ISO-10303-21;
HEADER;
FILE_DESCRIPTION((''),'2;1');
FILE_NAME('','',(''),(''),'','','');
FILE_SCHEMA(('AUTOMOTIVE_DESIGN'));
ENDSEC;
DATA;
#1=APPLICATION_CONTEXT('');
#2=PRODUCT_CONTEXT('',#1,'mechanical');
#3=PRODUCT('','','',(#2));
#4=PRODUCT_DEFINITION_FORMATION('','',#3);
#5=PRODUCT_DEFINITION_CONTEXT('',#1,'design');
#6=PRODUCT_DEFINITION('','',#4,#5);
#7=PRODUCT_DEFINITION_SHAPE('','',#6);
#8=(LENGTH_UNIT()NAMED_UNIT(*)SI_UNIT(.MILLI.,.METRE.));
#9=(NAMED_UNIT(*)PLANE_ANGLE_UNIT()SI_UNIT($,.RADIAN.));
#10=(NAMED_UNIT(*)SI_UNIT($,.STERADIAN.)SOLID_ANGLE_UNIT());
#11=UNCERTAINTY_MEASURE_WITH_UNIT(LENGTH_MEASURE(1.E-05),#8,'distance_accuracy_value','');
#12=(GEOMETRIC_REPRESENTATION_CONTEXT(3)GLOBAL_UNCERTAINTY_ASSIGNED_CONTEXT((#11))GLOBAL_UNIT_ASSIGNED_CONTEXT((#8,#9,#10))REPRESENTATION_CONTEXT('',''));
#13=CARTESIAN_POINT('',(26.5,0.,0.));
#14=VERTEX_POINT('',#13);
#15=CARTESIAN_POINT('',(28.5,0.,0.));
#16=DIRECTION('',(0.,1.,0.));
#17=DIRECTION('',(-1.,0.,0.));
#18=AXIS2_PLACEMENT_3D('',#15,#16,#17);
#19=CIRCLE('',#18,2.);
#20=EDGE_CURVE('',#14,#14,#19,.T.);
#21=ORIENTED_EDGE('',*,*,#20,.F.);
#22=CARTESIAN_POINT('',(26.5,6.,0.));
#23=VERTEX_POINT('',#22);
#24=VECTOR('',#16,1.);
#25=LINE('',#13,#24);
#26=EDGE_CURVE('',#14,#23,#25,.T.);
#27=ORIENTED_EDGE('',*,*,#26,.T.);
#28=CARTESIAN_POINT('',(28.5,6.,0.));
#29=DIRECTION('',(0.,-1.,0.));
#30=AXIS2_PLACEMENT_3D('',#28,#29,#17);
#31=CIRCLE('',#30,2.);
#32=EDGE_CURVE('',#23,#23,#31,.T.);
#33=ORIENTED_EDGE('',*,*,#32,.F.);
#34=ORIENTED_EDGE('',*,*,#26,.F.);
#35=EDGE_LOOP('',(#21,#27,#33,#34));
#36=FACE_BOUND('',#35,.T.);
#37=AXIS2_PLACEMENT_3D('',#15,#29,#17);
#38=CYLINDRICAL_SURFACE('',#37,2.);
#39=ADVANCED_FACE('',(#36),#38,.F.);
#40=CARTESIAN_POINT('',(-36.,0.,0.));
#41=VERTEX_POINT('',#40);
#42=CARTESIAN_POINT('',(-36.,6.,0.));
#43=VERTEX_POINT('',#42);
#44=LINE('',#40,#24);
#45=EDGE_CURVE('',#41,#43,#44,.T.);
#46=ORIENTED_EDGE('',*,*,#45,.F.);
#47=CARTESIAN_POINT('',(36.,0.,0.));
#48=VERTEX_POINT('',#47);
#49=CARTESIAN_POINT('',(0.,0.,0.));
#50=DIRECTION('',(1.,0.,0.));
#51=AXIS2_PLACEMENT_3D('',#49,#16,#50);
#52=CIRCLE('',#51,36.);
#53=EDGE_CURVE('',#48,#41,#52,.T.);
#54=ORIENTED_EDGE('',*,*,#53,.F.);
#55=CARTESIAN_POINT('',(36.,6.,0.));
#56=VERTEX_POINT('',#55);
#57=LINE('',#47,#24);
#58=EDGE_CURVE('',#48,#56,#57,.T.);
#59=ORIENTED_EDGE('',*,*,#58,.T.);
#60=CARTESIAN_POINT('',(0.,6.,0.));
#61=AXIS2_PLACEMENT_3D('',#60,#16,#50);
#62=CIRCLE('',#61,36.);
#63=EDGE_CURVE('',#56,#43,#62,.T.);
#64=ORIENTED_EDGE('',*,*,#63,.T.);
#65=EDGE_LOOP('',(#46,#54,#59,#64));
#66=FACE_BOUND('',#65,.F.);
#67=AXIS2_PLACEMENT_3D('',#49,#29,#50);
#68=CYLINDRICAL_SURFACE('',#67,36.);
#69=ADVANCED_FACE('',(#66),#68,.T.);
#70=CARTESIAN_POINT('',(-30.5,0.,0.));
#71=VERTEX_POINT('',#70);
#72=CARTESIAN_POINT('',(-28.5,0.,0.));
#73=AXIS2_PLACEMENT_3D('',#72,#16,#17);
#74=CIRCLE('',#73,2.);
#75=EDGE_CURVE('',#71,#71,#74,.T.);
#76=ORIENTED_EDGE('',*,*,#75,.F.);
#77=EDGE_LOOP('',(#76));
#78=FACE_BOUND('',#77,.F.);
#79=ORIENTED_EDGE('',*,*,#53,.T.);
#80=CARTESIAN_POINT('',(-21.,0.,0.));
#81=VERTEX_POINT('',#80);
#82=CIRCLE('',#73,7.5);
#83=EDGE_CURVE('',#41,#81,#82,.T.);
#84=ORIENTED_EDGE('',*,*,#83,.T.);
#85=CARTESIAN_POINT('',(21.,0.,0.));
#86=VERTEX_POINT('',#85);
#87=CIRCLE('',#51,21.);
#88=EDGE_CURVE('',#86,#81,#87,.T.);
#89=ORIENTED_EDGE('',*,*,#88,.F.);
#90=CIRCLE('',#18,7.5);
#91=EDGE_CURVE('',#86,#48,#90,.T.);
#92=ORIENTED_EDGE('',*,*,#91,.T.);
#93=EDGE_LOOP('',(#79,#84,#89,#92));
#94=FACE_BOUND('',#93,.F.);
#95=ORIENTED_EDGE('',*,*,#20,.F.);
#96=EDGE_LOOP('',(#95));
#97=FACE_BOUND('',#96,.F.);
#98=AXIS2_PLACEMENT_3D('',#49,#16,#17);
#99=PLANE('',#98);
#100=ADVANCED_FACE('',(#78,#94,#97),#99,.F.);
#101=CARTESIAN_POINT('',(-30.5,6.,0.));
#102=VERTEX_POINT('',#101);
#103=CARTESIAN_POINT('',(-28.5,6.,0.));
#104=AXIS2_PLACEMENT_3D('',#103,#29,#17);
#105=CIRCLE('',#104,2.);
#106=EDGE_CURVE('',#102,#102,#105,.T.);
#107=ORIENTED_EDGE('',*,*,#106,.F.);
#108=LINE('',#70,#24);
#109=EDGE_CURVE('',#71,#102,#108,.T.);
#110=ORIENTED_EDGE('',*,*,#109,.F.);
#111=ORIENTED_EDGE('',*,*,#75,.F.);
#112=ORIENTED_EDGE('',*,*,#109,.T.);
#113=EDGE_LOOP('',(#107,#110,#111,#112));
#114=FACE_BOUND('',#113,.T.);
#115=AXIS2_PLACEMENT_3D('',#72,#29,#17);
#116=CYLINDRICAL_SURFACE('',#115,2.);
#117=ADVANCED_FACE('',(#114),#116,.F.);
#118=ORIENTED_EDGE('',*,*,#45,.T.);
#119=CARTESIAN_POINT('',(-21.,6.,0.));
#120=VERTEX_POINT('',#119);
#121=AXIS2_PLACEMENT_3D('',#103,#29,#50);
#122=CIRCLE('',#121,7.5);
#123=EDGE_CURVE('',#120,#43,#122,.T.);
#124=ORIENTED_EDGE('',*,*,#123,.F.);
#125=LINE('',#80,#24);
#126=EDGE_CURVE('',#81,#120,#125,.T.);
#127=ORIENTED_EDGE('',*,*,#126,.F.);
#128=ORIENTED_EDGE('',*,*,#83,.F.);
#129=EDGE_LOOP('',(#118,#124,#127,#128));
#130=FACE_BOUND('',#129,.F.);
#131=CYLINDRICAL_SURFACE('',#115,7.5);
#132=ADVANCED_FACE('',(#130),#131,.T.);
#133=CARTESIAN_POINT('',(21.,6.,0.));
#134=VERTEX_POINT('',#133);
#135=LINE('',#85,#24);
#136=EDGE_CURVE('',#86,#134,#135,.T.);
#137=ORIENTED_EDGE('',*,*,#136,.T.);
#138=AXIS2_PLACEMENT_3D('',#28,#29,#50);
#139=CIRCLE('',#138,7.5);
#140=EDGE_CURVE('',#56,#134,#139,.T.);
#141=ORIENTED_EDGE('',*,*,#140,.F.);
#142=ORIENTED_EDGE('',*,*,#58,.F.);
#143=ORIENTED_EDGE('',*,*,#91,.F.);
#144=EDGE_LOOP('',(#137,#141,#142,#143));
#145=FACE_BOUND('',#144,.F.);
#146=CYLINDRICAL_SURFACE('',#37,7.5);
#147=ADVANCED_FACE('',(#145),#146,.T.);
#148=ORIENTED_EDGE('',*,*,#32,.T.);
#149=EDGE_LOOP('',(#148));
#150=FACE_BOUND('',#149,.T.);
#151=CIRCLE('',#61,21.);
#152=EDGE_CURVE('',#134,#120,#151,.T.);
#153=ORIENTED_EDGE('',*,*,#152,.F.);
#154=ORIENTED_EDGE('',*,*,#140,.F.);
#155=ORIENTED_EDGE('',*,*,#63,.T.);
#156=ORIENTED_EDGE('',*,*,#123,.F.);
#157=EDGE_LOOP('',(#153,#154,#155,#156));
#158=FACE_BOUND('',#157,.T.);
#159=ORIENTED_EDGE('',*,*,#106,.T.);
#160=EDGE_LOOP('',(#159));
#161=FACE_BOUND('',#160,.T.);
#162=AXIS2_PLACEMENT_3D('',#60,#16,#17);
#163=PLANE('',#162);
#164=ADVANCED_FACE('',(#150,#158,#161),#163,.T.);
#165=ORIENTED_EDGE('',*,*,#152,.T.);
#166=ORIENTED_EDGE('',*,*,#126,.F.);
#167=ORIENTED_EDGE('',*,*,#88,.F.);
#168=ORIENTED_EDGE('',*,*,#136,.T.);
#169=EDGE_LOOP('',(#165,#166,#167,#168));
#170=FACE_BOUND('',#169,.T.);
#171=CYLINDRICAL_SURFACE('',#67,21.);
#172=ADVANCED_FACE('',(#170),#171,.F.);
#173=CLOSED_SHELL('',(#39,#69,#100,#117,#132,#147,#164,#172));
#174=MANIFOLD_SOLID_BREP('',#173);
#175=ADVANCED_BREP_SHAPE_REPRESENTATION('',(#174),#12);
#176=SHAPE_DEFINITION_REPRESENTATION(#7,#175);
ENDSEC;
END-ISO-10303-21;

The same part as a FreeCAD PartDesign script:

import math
import FreeCAD as App
import Part
import Sketcher

doc = App.newDocument("Part")
body = doc.addObject("PartDesign::Body", "Body")

# Sketch on XZ plane
sketch1 = body.newObject("Sketcher::SketchObject", "Sketch")
sketch1.AttachmentSupport = (doc.getObject("XZ_Plane"), [""])
sketch1.MapMode = "FlatFace"
sketch1.addGeometry([
    Part.ArcOfCircle(Part.Circle(App.Vector(0, 0, 0), App.Vector(0, 0, 1), 21), math.radians(180), math.radians(360)),  # 0
    Part.ArcOfCircle(Part.Circle(App.Vector(28.5, 0, 0), App.Vector(0, 0, 1), 7.5), math.radians(0), math.radians(180)),  # 1
    Part.ArcOfCircle(Part.Circle(App.Vector(0, 0, 0), App.Vector(0, 0, 1), 36), math.radians(180), math.radians(360)),  # 2
    Part.ArcOfCircle(Part.Circle(App.Vector(-28.5, 0, 0), App.Vector(0, 0, 1), 7.5), math.radians(0), math.radians(180)),  # 3
    Part.Circle(App.Vector(-28.5, 0, 0), App.Vector(0, 0, 1), 2),  # 4
    Part.Circle(App.Vector(28.5, 0, 0), App.Vector(0, 0, 1), 2),  # 5
], False)
sketch1.addConstraint([
    Sketcher.Constraint("Tangent", 0, 2, 1, 2),
    Sketcher.Constraint("Tangent", 1, 1, 2, 2),
    Sketcher.Constraint("Tangent", 2, 1, 3, 2),
    Sketcher.Constraint("Tangent", 3, 1, 0, 1),
    Sketcher.Constraint("Coincident", 0, 3, -1, 1),
    Sketcher.Constraint("Coincident", 2, 3, -1, 1),
    Sketcher.Constraint("Coincident", 4, 3, 3, 3),
    Sketcher.Constraint("Coincident", 5, 3, 1, 3),
    Sketcher.Constraint("Equal", 4, 5),
    Sketcher.Constraint("PointOnObject", 1, 3, -1),
    Sketcher.Constraint("PointOnObject", 3, 3, -1),
    Sketcher.Constraint("Diameter", 4, 4.0),
    Sketcher.Constraint("Radius", 0, 21.0),
    Sketcher.Constraint("Radius", 1, 7.5),
])
pad1 = body.newObject("PartDesign::Pad", "Pad")
pad1.Profile = sketch1
pad1.Length = 6
pad1.Reversed = True

doc.recompute()
